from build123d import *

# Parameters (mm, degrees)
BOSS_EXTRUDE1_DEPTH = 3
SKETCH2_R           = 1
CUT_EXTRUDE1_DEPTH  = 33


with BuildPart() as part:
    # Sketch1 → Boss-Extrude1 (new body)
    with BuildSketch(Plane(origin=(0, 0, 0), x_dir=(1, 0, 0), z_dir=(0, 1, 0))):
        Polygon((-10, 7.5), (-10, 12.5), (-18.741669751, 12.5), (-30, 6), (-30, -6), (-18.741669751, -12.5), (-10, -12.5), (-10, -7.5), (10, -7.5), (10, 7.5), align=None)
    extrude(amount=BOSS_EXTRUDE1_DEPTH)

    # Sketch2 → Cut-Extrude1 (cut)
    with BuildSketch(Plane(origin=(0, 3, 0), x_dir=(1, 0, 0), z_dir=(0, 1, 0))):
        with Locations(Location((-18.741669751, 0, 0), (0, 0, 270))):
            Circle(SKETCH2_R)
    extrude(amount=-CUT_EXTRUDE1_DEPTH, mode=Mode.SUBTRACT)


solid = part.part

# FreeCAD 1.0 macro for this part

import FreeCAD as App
import Part
import Sketcher

V = App.Vector
Q = App.Units.Quantity

doc = App.newDocument("Part")
params = doc.addObject("Spreadsheet::Sheet", "Params")
for row, (alias, value) in enumerate([
    ("sketch1_width", "20 mm"),
    ("sketch1_height", "5 mm"),
    ("sketch1_height2", "12 mm"),
    ("sketch1_height3", "15 mm"),
    ("pad1_length", "3 mm"),
    ("sketch2_diameter", "2 mm"),
    ("pocket1_length", "33 mm"),
], start=1):
    params.set(f"A{row}", alias)
    params.set(f"B{row}", "=" + value)
    params.setAlias(f"B{row}", alias)

body = doc.addObject("PartDesign::Body", "Body")

sketch1 = body.newObject("Sketcher::SketchObject", "Sketch")
sketch1.AttachmentSupport = (doc.getObject("XZ_Plane"), [""])
sketch1.MapMode = "FlatFace"
sketch1.addGeometry([
    Part.LineSegment(V(-10, -7.5, 0), V(-10, -12.5, 0)),
    Part.LineSegment(V(-10, -12.5, 0), V(-18.74167, -12.5, 0)),
    Part.LineSegment(V(-18.74167, -12.5, 0), V(-30, -6, 0)),
    Part.LineSegment(V(-30, -6, 0), V(-30, 6, 0)),
    Part.LineSegment(V(-30, 6, 0), V(-18.74167, 12.5, 0)),
    Part.LineSegment(V(-18.74167, 12.5, 0), V(-10, 12.5, 0)),
    Part.LineSegment(V(-10, 12.5, 0), V(-10, 7.5, 0)),
    Part.LineSegment(V(-10, 7.5, 0), V(10, 7.5, 0)),
    Part.LineSegment(V(10, 7.5, 0), V(10, -7.5, 0)),
    Part.LineSegment(V(10, -7.5, 0), V(-10, -7.5, 0)),
], False)
sketch1.addConstraint([
    Sketcher.Constraint("Coincident", 0, 2, 1, 1),
    Sketcher.Constraint("Coincident", 1, 2, 2, 1),
    Sketcher.Constraint("Coincident", 2, 2, 3, 1),
    Sketcher.Constraint("Coincident", 3, 2, 4, 1),
    Sketcher.Constraint("Coincident", 4, 2, 5, 1),
    Sketcher.Constraint("Coincident", 5, 2, 6, 1),
    Sketcher.Constraint("Coincident", 6, 2, 7, 1),
    Sketcher.Constraint("Coincident", 7, 2, 8, 1),
    Sketcher.Constraint("Coincident", 8, 2, 9, 1),
    Sketcher.Constraint("Coincident", 9, 2, 0, 1),
    Sketcher.Constraint("Vertical", 0),
    Sketcher.Constraint("Horizontal", 1),
    Sketcher.Constraint("Vertical", 3),
    Sketcher.Constraint("Horizontal", 5),
    Sketcher.Constraint("Vertical", 6),
    Sketcher.Constraint("Horizontal", 7),
    Sketcher.Constraint("Vertical", 8),
    Sketcher.Constraint("Horizontal", 9),
    Sketcher.Constraint("Symmetric", 6, 2, 8, 2, -1, 1),
    Sketcher.Constraint("Symmetric", 1, 2, 4, 2, -1),
    Sketcher.Constraint("Vertical", 0, 2, 5, 2),
    Sketcher.Constraint("Equal", 2, 4),
    Sketcher.Constraint("DistanceX", 7, 1, 7, 2, Q("20 mm")),
    Sketcher.Constraint("DistanceY", 0, 2, 0, 1, Q("5 mm")),
    Sketcher.Constraint("DistanceY", 3, 1, 3, 2, Q("12 mm")),
    Sketcher.Constraint("DistanceY", 8, 2, 8, 1, Q("15 mm")),
    Sketcher.Constraint("Angle", 2, Q("150 deg")),
    Sketcher.Constraint("DistanceX", 2, 2, -1, 1, Q("30 mm")),
])
sketch1.setExpression("Constraints[22]", "Params.sketch1_width")
sketch1.setExpression("Constraints[23]", "Params.sketch1_height")
sketch1.setExpression("Constraints[24]", "Params.sketch1_height2")
sketch1.setExpression("Constraints[25]", "Params.sketch1_height3")
pad1 = body.newObject("PartDesign::Pad", "Pad")
pad1.Profile = sketch1
pad1.setExpression("Length", "Params.pad1_length")
pad1.Reversed = True

sketch2 = body.newObject("Sketcher::SketchObject", "Sketch001")
sketch2.AttachmentSupport = (doc.getObject("XZ_Plane"), [""])
sketch2.MapMode = "FlatFace"
sketch2.AttachmentOffset = App.Placement(V(0, 0, -3), App.Rotation())
sketch2.addGeometry(Part.Circle(V(-18.74167, 0, 0), V(0, 0, 1), 1), False)
sketch2.addConstraint([
    Sketcher.Constraint("PointOnObject", 0, 3, -1),
    Sketcher.Constraint("Diameter", 0, Q("2 mm")),
    Sketcher.Constraint("DistanceX", 0, 3, -1, 1, Q("18.74167 mm")),
])
sketch2.setExpression("Constraints[1]", "Params.sketch2_diameter")
pocket1 = body.newObject("PartDesign::Pocket", "Pocket")
pocket1.Profile = sketch2
pocket1.setExpression("Length", "Params.pocket1_length")
pocket1.Reversed = True

doc.recompute()
